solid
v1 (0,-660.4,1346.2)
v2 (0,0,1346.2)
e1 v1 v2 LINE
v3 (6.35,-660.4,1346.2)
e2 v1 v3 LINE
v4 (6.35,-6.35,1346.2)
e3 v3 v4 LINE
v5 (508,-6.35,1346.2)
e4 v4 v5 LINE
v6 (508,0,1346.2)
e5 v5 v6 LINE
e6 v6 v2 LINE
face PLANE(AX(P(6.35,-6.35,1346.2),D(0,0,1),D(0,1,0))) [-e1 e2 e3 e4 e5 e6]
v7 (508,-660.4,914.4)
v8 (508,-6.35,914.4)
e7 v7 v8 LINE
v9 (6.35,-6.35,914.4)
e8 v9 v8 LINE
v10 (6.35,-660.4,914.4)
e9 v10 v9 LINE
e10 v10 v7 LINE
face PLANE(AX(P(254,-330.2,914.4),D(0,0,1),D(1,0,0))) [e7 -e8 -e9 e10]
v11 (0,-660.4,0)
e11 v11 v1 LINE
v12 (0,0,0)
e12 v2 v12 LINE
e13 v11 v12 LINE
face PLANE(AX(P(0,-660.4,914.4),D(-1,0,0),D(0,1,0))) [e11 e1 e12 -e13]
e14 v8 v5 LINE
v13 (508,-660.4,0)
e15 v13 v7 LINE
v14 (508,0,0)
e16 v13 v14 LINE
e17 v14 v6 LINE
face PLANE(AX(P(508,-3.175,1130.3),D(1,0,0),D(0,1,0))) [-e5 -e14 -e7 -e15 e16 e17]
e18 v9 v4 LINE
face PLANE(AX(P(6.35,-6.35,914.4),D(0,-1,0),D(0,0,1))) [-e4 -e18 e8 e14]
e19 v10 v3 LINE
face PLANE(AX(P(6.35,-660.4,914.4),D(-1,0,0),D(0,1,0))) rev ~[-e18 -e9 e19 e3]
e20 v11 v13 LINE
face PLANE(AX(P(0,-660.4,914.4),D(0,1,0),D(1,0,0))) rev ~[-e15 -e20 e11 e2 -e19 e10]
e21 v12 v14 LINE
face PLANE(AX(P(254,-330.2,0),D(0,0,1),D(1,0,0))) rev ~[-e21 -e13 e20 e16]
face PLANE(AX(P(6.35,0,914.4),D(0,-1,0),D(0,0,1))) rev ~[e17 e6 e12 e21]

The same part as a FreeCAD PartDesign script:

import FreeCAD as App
import Part
import Sketcher
Q = App.Units.Quantity

doc = App.newDocument("Part")
body = doc.addObject("PartDesign::Body", "Body")

sketch1 = doc.addObject("Sketcher::SketchObject", "Sketch")
body.addObject(sketch1)
sketch1.AttachmentSupport = (doc.XY_Plane, [""])
sketch1.MapMode = "FlatFace"
sketch1.addGeometry([
    Part.LineSegment(App.Vector(0, 0, 0), App.Vector(0, -660, 0)),
    Part.LineSegment(App.Vector(0, -660, 0), App.Vector(508, -660, 0)),
    Part.LineSegment(App.Vector(508, -660, 0), App.Vector(508, 0, 0)),
    Part.LineSegment(App.Vector(508, 0, 0), App.Vector(0, 0, 0)),
], False)
sketch1.addConstraint([
    Sketcher.Constraint("Coincident", 0, 2, 1, 1),
    Sketcher.Constraint("Coincident", 1, 2, 2, 1),
    Sketcher.Constraint("Coincident", 2, 2, 3, 1),
    Sketcher.Constraint("Coincident", 3, 2, 0, 1),
    Sketcher.Constraint("Vertical", 0),
    Sketcher.Constraint("Horizontal", 1),
    Sketcher.Constraint("Vertical", 2),
    Sketcher.Constraint("Horizontal", 3),
    Sketcher.Constraint("Coincident", 3, 2, -1, 1),
    Sketcher.Constraint("DistanceX", 1, 1, 1, 2, Q("20 in")),
    Sketcher.Constraint("DistanceY", 0, 2, 0, 1, Q("26 in")),
])
pad1 = doc.addObject("PartDesign::Pad", "Pad")
body.addObject(pad1)
pad1.Profile = sketch1
pad1.Length = Q("36 in")

sketch2 = doc.addObject("Sketcher::SketchObject", "Sketch001")
body.addObject(sketch2)
sketch2.AttachmentSupport = (doc.XY_Plane, [""])
sketch2.MapMode = "FlatFace"
sketch2.AttachmentOffset = App.Placement(App.Vector(0, 0, 36 * 25.4), App.Rotation())
sketch2.addGeometry([
    Part.LineSegment(App.Vector(0, 0, 0), App.Vector(0, -660, 0)),
    Part.LineSegment(App.Vector(0, -660, 0), App.Vector(6, -660, 0)),
    Part.LineSegment(App.Vector(6, -660, 0), App.Vector(6, 0, 0)),
    Part.LineSegment(App.Vector(6, 0, 0), App.Vector(0, 0, 0)),
], False)
sketch2.addConstraint([
    Sketcher.Constraint("Coincident", 0, 2, 1, 1),
    Sketcher.Constraint("Coincident", 1, 2, 2, 1),
    Sketcher.Constraint("Coincident", 2, 2, 3, 1),
    Sketcher.Constraint("Coincident", 3, 2, 0, 1),
    Sketcher.Constraint("Vertical", 0),
    Sketcher.Constraint("Horizontal", 1),
    Sketcher.Constraint("Vertical", 2),
    Sketcher.Constraint("Horizontal", 3),
    Sketcher.Constraint("Coincident", 3, 2, -1, 1),
    Sketcher.Constraint("DistanceY", 0, 2, 0, 1, Q("26 in")),
    Sketcher.Constraint("DistanceX", 1, 1, 1, 2, Q("0.25 in")),
])
pad2 = doc.addObject("PartDesign::Pad", "Pad001")
body.addObject(pad2)
pad2.Profile = sketch2
pad2.Length = Q("17 in")

sketch3 = doc.addObject("Sketcher::SketchObject", "Sketch002")
body.addObject(sketch3)
sketch3.AttachmentSupport = (doc.YZ_Plane, [""])
sketch3.MapMode = "FlatFace"
sketch3.AttachmentOffset = App.Placement(App.Vector(0, 0, 0.25 * 25.4), App.Rotation())
sketch3.addGeometry([
    Part.LineSegment(App.Vector(-6, 1346, 0), App.Vector(-6, 914, 0)),
    Part.LineSegment(App.Vector(-6, 914, 0), App.Vector(0, 914, 0)),
    Part.LineSegment(App.Vector(0, 914, 0), App.Vector(0, 1346, 0)),
    Part.LineSegment(App.Vector(0, 1346, 0), App.Vector(-6, 1346, 0)),
], False)
sketch3.addConstraint([
    Sketcher.Constraint("Coincident", 0, 2, 1, 1),
    Sketcher.Constraint("Coincident", 1, 2, 2, 1),
    Sketcher.Constraint("Coincident", 2, 2, 3, 1),
    Sketcher.Constraint("Coincident", 3, 2, 0, 1),
    Sketcher.Constraint("Vertical", 0),
    Sketcher.Constraint("Horizontal", 1),
    Sketcher.Constraint("Vertical", 2),
    Sketcher.Constraint("Horizontal", 3),
    Sketcher.Constraint("PointOnObject", 1, 2, -2),
    Sketcher.Constraint("DistanceY", 0, 2, 0, 1, Q("17 in")),
    Sketcher.Constraint("DistanceY", -1, 1, 0, 2, Q("36 in")),
    Sketcher.Constraint("DistanceX", 1, 1, 1, 2, Q("0.25 in")),
])
pad3 = doc.addObject("PartDesign::Pad", "Pad002")
body.addObject(pad3)
pad3.Profile = sketch3
pad3.Length = Q("19.75 in")

doc.recompute()
